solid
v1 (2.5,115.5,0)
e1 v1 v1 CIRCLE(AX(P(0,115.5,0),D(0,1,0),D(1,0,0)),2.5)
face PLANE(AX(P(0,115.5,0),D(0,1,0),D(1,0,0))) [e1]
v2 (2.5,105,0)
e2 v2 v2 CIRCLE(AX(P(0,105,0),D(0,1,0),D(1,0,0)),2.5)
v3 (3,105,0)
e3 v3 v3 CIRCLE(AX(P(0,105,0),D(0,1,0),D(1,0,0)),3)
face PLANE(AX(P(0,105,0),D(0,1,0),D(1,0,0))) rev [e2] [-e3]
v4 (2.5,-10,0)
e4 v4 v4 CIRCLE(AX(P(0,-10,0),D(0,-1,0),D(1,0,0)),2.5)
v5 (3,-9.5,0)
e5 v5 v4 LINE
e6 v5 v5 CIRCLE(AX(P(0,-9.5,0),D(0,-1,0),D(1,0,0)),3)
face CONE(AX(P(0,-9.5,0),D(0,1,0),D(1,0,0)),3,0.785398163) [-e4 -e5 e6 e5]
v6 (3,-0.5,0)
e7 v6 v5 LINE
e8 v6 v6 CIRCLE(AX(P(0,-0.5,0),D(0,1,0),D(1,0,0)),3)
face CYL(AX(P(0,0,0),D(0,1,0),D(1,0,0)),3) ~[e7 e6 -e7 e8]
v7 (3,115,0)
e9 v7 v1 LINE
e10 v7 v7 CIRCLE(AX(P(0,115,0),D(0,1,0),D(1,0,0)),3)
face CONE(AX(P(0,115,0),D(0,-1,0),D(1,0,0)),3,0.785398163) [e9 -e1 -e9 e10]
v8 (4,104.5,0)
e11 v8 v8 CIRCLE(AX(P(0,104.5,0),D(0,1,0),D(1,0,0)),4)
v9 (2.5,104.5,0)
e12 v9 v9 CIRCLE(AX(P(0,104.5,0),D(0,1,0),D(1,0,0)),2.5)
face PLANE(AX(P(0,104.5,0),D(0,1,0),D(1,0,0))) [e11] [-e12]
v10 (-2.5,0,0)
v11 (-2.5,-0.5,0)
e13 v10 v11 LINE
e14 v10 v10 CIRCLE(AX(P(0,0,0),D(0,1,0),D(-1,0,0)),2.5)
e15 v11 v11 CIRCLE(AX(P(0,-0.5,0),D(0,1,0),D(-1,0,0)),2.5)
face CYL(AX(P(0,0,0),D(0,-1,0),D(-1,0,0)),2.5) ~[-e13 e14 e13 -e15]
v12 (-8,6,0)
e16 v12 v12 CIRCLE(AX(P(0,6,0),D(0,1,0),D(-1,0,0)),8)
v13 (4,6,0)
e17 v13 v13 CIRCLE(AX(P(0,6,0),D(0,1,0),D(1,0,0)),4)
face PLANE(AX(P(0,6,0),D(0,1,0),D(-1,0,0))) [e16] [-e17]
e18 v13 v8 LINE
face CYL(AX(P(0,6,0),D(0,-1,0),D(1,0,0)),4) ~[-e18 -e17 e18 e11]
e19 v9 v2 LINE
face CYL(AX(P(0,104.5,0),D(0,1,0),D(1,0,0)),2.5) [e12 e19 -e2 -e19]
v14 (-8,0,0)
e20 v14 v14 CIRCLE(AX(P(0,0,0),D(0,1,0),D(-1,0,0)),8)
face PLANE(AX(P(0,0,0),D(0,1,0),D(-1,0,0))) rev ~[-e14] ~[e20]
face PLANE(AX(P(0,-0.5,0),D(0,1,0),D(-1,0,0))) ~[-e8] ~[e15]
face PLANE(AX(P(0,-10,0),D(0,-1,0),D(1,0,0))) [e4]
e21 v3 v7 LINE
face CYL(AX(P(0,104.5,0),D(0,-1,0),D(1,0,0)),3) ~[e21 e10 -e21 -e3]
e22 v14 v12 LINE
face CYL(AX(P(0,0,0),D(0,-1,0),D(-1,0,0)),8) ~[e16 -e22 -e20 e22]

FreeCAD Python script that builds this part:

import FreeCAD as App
import Part
import Sketcher

V = App.Vector


def edges_at(feature, points):
    """Names of the edges that pass closest to the given points."""
    edges = feature.Shape.Edges
    near = lambda p: min(range(len(edges)), key=lambda i: edges[i].distToShape(Part.Vertex(*p))[0])
    return sorted({f"Edge{near(p) + 1}" for p in points})

doc = App.newDocument("Part")
params = doc.addObject("Spreadsheet::Sheet", "Params")
for row, (alias, value) in enumerate([
    ("sketch1_diameter", "16 mm"),
    ("pad1_length", "6 mm"),
    ("sketch2_diameter", "6 mm"),
    ("pad2_length", "10 mm"),
    ("chamfer_size", "0.5 mm"),
    ("sketch3_width", "0.5 mm"),
    ("groove_angle", "360 deg"),
    ("sketch4_diameter", "8 mm"),
    ("pad3_length", "98.5 mm"),
    ("sketch5_diameter", "6 mm"),
    ("pad4_length", "11 mm"),
    ("chamfer2_size", "0.5 mm"),
    ("sketch6_width", "0.5 mm"),
    ("groove2_angle", "360 deg"),
], start=1):
    params.set(f"A{row}", alias)
    params.set(f"B{row}", "=" + value)
    params.setAlias(f"B{row}", alias)

body = doc.addObject("PartDesign::Body", "Body")

sketch1 = doc.addObject("Sketcher::SketchObject", "Sketch")
body.addObject(sketch1)
sketch1.AttachmentSupport = (doc.XZ_Plane, [""])
sketch1.MapMode = "FlatFace"
sketch1.addGeometry(Part.Circle(V(0, 0, 0), V(0, 0, 1), 8), False)
sketch1.addConstraint([
    Sketcher.Constraint("Coincident", 0, 3, -1, 1),
    Sketcher.Constraint("Diameter", 0, 16.0),
])
sketch1.setExpression("Constraints[1]", "Params.sketch1_diameter")
pad1 = doc.addObject("PartDesign::Pad", "Pad")
body.addObject(pad1)
pad1.Profile = sketch1
pad1.setExpression("Length", "Params.pad1_length")
pad1.Reversed = True

sketch2 = doc.addObject("Sketcher::SketchObject", "Sketch001")
body.addObject(sketch2)
sketch2.AttachmentSupport = (doc.XZ_Plane, [""])
sketch2.MapMode = "FlatFace"
sketch2.addGeometry(Part.Circle(V(0, 0, 0), V(0, 0, 1), 3), False)
sketch2.addConstraint([
    Sketcher.Constraint("Coincident", 0, 3, -1, 1),
    Sketcher.Constraint("Diameter", 0, 6.0),
])
sketch2.setExpression("Constraints[1]", "Params.sketch2_diameter")
pad2 = doc.addObject("PartDesign::Pad", "Pad001")
body.addObject(pad2)
pad2.Profile = sketch2
pad2.setExpression("Length", "Params.pad2_length")
doc.recompute()

chamfer = doc.addObject("PartDesign::Chamfer", "Chamfer")
body.addObject(chamfer)
chamfer.Base = (pad2, edges_at(pad2, [(-3, -10, 0)]))
chamfer.setExpression("Size", "Params.chamfer_size")

sketch3 = doc.addObject("Sketcher::SketchObject", "Sketch002")
body.addObject(sketch3)
sketch3.AttachmentSupport = (doc.XY_Plane, [""])
sketch3.MapMode = "FlatFace"
sketch3.addGeometry([
    Part.LineSegment(V(-2.5, -0.5, 0), V(-2.5, 0, 0)),
    Part.LineSegment(V(-2.5, 0, 0), V(-3, 0, 0)),
    Part.LineSegment(V(-3, 0, 0), V(-3, -0.5, 0)),
    Part.LineSegment(V(-3, -0.5, 0), V(-2.5, -0.5, 0)),
], False)
sketch3.addConstraint([
    Sketcher.Constraint("Coincident", 0, 2, 1, 1),
    Sketcher.Constraint("Coincident", 1, 2, 2, 1),
    Sketcher.Constraint("Coincident", 2, 2, 3, 1),
    Sketcher.Constraint("Coincident", 3, 2, 0, 1),
    Sketcher.Constraint("Vertical", 0),
    Sketcher.Constraint("Horizontal", 1),
    Sketcher.Constraint("Vertical", 2),
    Sketcher.Constraint("Horizontal", 3),
    Sketcher.Constraint("PointOnObject", 0, 2, -1),
    Sketcher.Constraint("Equal", 3, 0),
    Sketcher.Constraint("DistanceX", 1, 2, 1, 1, 0.5),
    Sketcher.Constraint("DistanceX", 1, 2, -1, 1, 3.0),
])
sketch3.setExpression("Constraints[10]", "Params.sketch3_width")
groove = doc.addObject("PartDesign::Groove", "Groove")
body.addObject(groove)
groove.Profile = sketch3
groove.ReferenceAxis = (sketch3, ["V_Axis"])
groove.setExpression("Angle", "Params.groove_angle")

sketch4 = doc.addObject("Sketcher::SketchObject", "Sketch003")
body.addObject(sketch4)
sketch4.AttachmentSupport = (doc.XZ_Plane, [""])
sketch4.MapMode = "FlatFace"
sketch4.AttachmentOffset = App.Placement(V(0, 0, -6), App.Rotation())
sketch4.addGeometry(Part.Circle(V(0, 0, 0), V(0, 0, 1), 4), False)
sketch4.addConstraint([
    Sketcher.Constraint("Coincident", 0, 3, -1, 1),
    Sketcher.Constraint("Diameter", 0, 8.0),
])
sketch4.setExpression("Constraints[1]", "Params.sketch4_diameter")
pad3 = doc.addObject("PartDesign::Pad", "Pad002")
body.addObject(pad3)
pad3.Profile = sketch4
pad3.setExpression("Length", "Params.pad3_length")
pad3.Reversed = True

sketch5 = doc.addObject("Sketcher::SketchObject", "Sketch004")
body.addObject(sketch5)
sketch5.AttachmentSupport = (doc.XZ_Plane, [""])
sketch5.MapMode = "FlatFace"
sketch5.AttachmentOffset = App.Placement(V(0, 0, -104.5), App.Rotation())
sketch5.addGeometry(Part.Circle(V(0, 0, 0), V(0, 0, 1), 3), False)
sketch5.addConstraint([
    Sketcher.Constraint("Coincident", 0, 3, -1, 1),
    Sketcher.Constraint("Diameter", 0, 6.0),
])
sketch5.setExpression("Constraints[1]", "Params.sketch5_diameter")
pad4 = doc.addObject("PartDesign::Pad", "Pad003")
body.addObject(pad4)
pad4.Profile = sketch5
pad4.setExpression("Length", "Params.pad4_length")
pad4.Reversed = True
doc.recompute()

chamfer2 = doc.addObject("PartDesign::Chamfer", "Chamfer001")
body.addObject(chamfer2)
chamfer2.Base = (pad4, edges_at(pad4, [(-3, 115.5, 0)]))
chamfer2.setExpression("Size", "Params.chamfer2_size")

sketch6 = doc.addObject("Sketcher::SketchObject", "Sketch005")
body.addObject(sketch6)
sketch6.AttachmentSupport = (doc.XY_Plane, [""])
sketch6.MapMode = "FlatFace"
sketch6.addGeometry([
    Part.LineSegment(V(2.5, 104.5, 0), V(3, 104.5, 0)),
    Part.LineSegment(V(3, 104.5, 0), V(3, 105, 0)),
    Part.LineSegment(V(3, 105, 0), V(2.5, 105, 0)),
    Part.LineSegment(V(2.5, 105, 0), V(2.5, 104.5, 0)),
], False)
sketch6.addConstraint([
    Sketcher.Constraint("Coincident", 0, 2, 1, 1),
    Sketcher.Constraint("Coincident", 1, 2, 2, 1),
    Sketcher.Constraint("Coincident", 2, 2, 3, 1),
    Sketcher.Constraint("Coincident", 3, 2, 0, 1),
    Sketcher.Constraint("Horizontal", 0),
    Sketcher.Constraint("Vertical", 1),
    Sketcher.Constraint("Horizontal", 2),
    Sketcher.Constraint("Vertical", 3),
    Sketcher.Constraint("Equal", 2, 1),
    Sketcher.Constraint("DistanceX", 0, 1, 0, 2, 0.5),
    Sketcher.Constraint("DistanceX", -1, 1, 0, 2, 3.0),
    Sketcher.Constraint("DistanceY", -1, 1, 1, 2, 105.0),
])
sketch6.setExpression("Constraints[9]", "Params.sketch6_width")
groove2 = doc.addObject("PartDesign::Groove", "Groove001")
body.addObject(groove2)
groove2.Profile = sketch6
groove2.ReferenceAxis = (sketch6, ["V_Axis"])
groove2.setExpression("Angle", "Params.groove2_angle")

doc.recompute()
